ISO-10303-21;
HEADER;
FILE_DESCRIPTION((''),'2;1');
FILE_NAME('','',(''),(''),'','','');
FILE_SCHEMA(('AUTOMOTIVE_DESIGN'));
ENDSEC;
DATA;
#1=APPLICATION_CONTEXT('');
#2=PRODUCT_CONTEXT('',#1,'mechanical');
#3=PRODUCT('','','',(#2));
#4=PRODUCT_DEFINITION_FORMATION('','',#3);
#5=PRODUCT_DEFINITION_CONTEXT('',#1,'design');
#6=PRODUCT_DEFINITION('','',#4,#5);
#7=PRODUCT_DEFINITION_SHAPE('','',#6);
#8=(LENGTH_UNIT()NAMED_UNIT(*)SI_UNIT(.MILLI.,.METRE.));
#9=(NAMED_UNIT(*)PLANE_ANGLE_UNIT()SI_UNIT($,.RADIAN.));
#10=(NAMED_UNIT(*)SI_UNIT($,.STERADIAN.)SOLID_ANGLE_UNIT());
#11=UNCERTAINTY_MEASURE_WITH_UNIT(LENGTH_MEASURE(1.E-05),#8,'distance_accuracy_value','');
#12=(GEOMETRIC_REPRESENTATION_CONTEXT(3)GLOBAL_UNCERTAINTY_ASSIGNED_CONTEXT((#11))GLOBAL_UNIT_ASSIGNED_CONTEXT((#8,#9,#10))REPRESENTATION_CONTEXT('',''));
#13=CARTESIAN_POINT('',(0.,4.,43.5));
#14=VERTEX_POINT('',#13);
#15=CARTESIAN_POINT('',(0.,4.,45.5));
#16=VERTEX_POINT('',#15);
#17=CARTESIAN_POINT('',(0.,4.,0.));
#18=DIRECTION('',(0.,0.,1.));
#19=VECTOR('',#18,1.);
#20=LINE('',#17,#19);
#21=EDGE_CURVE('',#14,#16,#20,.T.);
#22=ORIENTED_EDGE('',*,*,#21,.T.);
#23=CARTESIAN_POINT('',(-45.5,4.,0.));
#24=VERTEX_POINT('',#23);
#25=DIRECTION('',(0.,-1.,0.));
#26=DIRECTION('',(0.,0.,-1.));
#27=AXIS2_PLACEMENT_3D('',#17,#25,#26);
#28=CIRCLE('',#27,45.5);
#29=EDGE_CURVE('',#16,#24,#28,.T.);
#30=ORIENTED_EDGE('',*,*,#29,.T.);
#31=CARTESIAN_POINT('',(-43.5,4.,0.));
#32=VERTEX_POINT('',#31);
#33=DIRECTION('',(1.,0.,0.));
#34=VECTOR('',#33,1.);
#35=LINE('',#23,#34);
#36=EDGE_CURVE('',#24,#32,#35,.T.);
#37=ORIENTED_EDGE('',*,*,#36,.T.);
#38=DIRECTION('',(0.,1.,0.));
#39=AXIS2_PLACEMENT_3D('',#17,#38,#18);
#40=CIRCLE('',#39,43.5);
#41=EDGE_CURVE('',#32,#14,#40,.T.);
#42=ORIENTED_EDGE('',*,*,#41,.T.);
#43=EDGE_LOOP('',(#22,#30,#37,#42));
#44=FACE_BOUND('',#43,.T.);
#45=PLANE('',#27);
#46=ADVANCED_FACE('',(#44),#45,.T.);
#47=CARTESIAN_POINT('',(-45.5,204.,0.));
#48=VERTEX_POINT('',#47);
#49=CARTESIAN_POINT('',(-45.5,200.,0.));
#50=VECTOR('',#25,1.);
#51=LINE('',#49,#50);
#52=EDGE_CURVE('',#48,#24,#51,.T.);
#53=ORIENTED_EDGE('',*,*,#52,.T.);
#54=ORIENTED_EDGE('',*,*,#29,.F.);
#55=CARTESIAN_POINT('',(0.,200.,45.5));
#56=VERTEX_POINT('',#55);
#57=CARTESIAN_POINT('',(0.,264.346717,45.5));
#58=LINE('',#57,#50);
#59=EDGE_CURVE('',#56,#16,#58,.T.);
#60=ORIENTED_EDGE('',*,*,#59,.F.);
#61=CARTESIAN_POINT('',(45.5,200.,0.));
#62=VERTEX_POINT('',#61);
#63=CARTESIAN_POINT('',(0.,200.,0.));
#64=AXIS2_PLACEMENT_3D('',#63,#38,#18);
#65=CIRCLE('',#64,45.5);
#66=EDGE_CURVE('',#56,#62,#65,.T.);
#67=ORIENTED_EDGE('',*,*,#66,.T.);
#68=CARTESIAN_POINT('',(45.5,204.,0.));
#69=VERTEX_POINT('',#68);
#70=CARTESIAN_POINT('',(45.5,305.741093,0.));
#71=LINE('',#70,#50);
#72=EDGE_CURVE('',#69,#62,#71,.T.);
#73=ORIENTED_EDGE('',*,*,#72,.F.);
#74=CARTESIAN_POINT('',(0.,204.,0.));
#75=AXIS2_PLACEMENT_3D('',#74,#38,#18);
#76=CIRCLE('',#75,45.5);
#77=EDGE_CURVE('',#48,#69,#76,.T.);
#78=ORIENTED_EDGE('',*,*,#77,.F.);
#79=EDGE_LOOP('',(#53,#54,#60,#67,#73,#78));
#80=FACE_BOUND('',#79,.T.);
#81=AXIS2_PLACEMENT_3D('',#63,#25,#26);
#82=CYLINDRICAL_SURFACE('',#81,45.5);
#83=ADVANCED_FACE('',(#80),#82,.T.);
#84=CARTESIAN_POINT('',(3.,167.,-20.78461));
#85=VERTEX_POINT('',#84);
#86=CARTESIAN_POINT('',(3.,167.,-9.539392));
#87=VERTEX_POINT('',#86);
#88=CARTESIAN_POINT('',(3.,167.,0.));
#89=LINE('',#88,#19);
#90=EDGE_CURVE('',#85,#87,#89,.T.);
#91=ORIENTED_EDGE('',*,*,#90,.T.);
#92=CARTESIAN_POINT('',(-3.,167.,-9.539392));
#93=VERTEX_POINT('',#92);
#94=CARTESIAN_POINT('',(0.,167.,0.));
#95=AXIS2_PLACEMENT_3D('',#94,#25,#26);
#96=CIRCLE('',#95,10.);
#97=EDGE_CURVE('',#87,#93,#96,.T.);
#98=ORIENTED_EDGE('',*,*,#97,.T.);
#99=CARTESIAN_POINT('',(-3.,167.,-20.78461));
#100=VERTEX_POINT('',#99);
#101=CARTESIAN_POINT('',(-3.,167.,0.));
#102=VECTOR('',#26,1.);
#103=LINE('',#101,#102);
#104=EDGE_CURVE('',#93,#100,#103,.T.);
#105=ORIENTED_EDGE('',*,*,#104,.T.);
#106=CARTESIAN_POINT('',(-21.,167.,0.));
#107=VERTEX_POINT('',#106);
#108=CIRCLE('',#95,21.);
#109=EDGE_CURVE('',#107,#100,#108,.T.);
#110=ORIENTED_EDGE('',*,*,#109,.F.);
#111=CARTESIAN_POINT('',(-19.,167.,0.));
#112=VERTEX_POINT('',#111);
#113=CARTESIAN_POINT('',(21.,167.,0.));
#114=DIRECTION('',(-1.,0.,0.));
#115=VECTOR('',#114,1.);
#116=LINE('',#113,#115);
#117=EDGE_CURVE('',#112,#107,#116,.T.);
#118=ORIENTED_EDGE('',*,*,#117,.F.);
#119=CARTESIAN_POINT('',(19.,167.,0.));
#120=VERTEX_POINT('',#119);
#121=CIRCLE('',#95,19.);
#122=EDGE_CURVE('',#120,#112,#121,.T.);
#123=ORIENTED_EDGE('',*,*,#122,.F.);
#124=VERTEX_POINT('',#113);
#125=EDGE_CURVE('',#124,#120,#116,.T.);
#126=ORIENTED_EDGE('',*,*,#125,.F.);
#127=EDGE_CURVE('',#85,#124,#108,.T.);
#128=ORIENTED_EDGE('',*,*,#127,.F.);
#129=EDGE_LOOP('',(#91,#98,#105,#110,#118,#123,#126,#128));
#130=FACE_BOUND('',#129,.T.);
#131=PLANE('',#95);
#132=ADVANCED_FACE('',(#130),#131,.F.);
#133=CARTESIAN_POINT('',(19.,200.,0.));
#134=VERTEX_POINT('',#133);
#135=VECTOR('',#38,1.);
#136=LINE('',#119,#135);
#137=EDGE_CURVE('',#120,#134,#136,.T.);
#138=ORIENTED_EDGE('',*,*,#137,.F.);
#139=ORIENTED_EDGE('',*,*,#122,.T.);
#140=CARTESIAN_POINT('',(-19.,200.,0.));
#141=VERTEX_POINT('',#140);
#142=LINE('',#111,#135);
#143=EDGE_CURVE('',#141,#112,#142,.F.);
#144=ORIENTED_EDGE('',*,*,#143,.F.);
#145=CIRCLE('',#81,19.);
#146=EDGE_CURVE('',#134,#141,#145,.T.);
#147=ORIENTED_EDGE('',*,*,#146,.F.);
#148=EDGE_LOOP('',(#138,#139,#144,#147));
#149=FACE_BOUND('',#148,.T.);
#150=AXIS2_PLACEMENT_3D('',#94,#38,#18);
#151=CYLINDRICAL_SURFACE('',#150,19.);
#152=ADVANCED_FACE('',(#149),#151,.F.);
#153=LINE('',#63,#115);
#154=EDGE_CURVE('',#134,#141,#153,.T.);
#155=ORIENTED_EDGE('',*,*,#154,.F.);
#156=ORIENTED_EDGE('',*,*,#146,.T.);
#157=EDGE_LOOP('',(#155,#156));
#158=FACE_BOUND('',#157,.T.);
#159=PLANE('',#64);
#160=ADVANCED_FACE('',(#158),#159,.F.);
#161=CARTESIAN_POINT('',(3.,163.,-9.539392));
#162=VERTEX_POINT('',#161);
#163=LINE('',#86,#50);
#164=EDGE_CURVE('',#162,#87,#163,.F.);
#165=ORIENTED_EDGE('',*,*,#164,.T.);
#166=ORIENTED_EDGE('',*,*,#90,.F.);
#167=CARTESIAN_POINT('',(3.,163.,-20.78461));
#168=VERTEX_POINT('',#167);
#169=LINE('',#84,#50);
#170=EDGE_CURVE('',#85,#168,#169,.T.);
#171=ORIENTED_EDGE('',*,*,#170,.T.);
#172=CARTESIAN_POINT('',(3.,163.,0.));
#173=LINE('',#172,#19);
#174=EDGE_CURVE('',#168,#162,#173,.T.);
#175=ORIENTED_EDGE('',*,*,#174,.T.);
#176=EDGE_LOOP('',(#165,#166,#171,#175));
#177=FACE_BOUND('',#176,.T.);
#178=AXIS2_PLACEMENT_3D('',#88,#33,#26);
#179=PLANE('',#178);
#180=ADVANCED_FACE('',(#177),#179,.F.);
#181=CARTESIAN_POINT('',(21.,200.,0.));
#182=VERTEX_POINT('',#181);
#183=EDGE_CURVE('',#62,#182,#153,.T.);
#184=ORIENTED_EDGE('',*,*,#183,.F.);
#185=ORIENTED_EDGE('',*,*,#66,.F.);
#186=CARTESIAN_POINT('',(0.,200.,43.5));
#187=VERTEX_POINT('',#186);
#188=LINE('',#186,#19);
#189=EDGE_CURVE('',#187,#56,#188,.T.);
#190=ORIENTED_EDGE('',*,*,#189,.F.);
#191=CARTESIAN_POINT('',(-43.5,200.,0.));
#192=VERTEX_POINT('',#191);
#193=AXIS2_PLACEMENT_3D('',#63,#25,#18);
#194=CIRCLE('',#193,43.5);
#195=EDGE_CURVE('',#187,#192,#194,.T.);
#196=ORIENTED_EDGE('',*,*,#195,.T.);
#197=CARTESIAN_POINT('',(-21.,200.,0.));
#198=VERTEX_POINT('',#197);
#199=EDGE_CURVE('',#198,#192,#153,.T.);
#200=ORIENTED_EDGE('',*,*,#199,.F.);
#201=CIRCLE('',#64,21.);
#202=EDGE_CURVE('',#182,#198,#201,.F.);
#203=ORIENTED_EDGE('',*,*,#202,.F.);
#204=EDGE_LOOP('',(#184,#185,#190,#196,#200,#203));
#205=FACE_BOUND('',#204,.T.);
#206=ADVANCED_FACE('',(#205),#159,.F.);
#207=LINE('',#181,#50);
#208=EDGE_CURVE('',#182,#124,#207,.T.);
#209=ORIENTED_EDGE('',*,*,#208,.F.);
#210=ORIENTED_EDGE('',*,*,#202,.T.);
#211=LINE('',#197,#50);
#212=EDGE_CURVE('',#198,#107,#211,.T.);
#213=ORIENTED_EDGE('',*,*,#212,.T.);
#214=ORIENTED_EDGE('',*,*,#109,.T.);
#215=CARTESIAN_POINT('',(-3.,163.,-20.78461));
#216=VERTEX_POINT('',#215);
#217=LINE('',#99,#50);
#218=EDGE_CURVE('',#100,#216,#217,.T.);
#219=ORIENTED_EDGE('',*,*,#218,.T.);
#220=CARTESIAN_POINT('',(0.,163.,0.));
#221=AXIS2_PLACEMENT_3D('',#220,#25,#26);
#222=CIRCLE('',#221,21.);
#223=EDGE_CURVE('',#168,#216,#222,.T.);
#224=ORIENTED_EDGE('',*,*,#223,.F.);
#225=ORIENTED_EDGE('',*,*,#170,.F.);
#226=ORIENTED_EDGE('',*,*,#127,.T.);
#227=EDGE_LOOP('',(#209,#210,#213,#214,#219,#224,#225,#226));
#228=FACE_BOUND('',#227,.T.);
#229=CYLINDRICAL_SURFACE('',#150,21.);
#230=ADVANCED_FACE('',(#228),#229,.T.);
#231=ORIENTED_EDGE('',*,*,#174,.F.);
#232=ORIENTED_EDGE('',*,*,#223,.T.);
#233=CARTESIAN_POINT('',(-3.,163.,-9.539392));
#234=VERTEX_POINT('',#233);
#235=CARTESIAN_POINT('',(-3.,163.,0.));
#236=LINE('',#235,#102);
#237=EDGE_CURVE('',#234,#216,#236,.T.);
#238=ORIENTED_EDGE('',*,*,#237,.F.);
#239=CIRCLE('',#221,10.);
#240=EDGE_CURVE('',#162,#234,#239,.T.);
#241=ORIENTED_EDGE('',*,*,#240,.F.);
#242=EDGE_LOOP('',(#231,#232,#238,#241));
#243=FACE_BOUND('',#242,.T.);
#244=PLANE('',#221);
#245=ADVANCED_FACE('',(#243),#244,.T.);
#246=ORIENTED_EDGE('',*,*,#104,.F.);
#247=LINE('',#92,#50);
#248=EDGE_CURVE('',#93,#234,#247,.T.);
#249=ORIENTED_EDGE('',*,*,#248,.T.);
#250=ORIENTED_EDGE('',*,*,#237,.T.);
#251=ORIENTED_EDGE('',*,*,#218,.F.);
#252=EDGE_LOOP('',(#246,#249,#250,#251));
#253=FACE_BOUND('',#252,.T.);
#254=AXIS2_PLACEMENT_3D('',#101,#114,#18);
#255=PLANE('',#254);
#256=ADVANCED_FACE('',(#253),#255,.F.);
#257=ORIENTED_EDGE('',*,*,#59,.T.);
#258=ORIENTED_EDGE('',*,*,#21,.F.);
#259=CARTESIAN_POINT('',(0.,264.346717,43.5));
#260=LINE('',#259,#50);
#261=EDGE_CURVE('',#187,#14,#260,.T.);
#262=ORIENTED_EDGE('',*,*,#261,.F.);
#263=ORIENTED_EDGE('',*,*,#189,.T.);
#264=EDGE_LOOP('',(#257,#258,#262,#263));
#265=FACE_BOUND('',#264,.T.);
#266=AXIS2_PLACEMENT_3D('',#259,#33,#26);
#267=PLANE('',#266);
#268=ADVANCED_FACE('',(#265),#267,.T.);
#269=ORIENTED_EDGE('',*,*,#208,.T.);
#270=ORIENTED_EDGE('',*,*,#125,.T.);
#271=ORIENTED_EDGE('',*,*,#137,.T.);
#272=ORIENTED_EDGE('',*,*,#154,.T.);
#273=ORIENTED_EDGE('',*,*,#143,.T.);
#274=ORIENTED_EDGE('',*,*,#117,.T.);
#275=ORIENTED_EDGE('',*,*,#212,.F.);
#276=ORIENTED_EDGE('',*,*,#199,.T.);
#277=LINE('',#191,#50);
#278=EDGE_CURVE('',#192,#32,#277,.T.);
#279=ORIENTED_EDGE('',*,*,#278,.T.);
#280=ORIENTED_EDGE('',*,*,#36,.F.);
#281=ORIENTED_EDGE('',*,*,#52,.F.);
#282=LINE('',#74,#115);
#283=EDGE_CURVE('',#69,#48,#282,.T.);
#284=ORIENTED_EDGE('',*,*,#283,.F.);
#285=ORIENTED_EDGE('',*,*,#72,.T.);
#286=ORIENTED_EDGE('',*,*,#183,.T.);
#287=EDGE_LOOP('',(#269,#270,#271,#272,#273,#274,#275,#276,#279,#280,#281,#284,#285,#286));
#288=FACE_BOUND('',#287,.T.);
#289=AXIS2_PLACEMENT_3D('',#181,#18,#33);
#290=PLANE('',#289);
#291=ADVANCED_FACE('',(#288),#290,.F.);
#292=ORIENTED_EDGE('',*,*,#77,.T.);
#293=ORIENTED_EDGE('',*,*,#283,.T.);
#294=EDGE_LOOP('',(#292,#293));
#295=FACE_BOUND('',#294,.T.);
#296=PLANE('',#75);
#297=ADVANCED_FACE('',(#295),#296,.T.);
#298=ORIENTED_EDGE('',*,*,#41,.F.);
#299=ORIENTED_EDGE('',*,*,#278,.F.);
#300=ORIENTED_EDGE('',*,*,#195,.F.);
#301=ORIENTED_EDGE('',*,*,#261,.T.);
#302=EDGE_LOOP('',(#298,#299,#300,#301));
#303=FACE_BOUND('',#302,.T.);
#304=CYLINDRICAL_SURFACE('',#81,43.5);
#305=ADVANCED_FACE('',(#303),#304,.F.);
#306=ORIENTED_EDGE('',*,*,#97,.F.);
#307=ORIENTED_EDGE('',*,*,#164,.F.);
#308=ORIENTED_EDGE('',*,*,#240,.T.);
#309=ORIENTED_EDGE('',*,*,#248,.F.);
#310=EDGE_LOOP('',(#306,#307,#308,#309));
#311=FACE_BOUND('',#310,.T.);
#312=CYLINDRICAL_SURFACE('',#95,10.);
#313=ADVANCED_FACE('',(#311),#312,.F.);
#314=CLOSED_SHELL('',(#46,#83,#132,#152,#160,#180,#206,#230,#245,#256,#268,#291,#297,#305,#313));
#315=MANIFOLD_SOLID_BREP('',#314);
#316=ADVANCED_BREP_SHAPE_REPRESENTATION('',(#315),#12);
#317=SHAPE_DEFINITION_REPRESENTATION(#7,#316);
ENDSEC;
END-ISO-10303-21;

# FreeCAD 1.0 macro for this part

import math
import FreeCAD as App
import Part
import Sketcher

V = App.Vector
Q = App.Units.Quantity

doc = App.newDocument("Part")
body = doc.addObject("PartDesign::Body", "Body")

# Sketch on XZ plane
sketch1 = body.newObject("Sketcher::SketchObject", "Sketch")
sketch1.AttachmentSupport = (doc.getObject("XZ_Plane"), [""])
sketch1.MapMode = "FlatFace"
sketch1.addGeometry([
    Part.Circle(V(0, 0, 0), V(0, 0, 1), 44),
    Part.Circle(V(0, 0, 0), V(0, 0, 1), 30),
], False)
sketch1.addConstraint([
    Sketcher.Constraint("Coincident", 0, 3, -1, 1),
    Sketcher.Constraint("Coincident", 1, 3, -1, 1),
    Sketcher.Constraint("Diameter", 0, Q("87 mm")),
    Sketcher.Constraint("Diameter", 1, Q("60 mm")),
])
pad1 = body.newObject("PartDesign::Pad", "Pad")
pad1.Profile = sketch1
pad1.Length = 4
pad1.Reversed = True

# Sketch on XZ plane
sketch2 = body.newObject("Sketcher::SketchObject", "Sketch001")
sketch2.AttachmentSupport = (doc.getObject("XZ_Plane"), [""])
sketch2.MapMode = "FlatFace"
sketch2.addGeometry([
    Part.Circle(V(0, 0, 0), V(0, 0, 1), 30),
    Part.Circle(V(0, 0, 0), V(0, 0, 1), 20),
], False)
sketch2.addConstraint([
    Sketcher.Constraint("Coincident", 0, 3, -1, 1),
    Sketcher.Constraint("Coincident", 1, 3, -1, 1),
    Sketcher.Constraint("Diameter", 0, Q("60 mm")),
    Sketcher.Constraint("Diameter", 1, Q("40 mm")),
])
pad2 = body.newObject("PartDesign::Pad", "Pad001")
pad2.Profile = sketch2
pad2.Length = 4
pad2.Reversed = True

# Sketch on XZ plane
sketch3 = body.newObject("Sketcher::SketchObject", "Sketch002")
sketch3.AttachmentSupport = (doc.getObject("XZ_Plane"), [""])
sketch3.MapMode = "FlatFace"
sketch3.addGeometry([
    Part.Circle(V(0, 0, 0), V(0, 0, 1), 30),
    Part.Circle(V(0, 0, 0), V(0, 0, 1), 20),
], False)
sketch3.addConstraint([
    Sketcher.Constraint("Coincident", 0, 3, -1, 1),
    Sketcher.Constraint("Coincident", 1, 3, -1, 1),
    Sketcher.Constraint("Diameter", 0, Q("60 mm")),
    Sketcher.Constraint("Diameter", 1, Q("40 mm")),
])
pocket1 = body.newObject("PartDesign::Pocket", "Pocket")
pocket1.Profile = sketch3
pocket1.Length = 2

# Sketch on XZ plane
sketch4 = body.newObject("Sketcher::SketchObject", "Sketch003")
sketch4.AttachmentSupport = (doc.getObject("XZ_Plane"), [""])
sketch4.MapMode = "FlatFace"
sketch4.addGeometry([
    Part.Circle(V(0, 37.5, 0), V(0, 0, 1), 3),
    Part.Circle(V(-37.5, 0, 0), V(0, 0, 1), 3),
    Part.Circle(V(0, -37.5, 0), V(0, 0, 1), 3),
    Part.Circle(V(37.5, 0, 0), V(0, 0, 1), 3),
], False)
sketch4.addConstraint([
    Sketcher.Constraint("Equal", 0, 1),
    Sketcher.Constraint("Equal", 1, 2),
    Sketcher.Constraint("Equal", 2, 3),
    Sketcher.Constraint("Symmetric", 0, 3, 2, 3, -1, 1),
    Sketcher.Constraint("Symmetric", 1, 3, 3, 3, -1, 1),
    Sketcher.Constraint("PointOnObject", 0, 3, -2),
    Sketcher.Constraint("PointOnObject", 1, 3, -1),
    Sketcher.Constraint("Diameter", 0, Q("6 mm")),
    Sketcher.Constraint("DistanceY", 2, 3, 0, 3, Q("75 mm")),
    Sketcher.Constraint("DistanceX", 1, 3, 3, 3, Q("75 mm")),
])
pocket2 = body.newObject("PartDesign::Pocket", "Pocket001")
pocket2.Profile = sketch4
pocket2.Length = 4

# Sketch on XZ plane
sketch5 = body.newObject("Sketcher::SketchObject", "Sketch004")
sketch5.AttachmentSupport = (doc.getObject("XZ_Plane"), [""])
sketch5.MapMode = "FlatFace"
sketch5.addGeometry([
    Part.LineSegment(V(-43.5, 0, 0), V(-45.5, 0, 0)),
    Part.ArcOfCircle(Part.Circle(V(0, 0, 0), V(0, 0, 1), 45.5), math.radians(0), math.radians(180)),
    Part.LineSegment(V(45.5, 0, 0), V(43.5, 0, 0)),
    Part.ArcOfCircle(Part.Circle(V(0, 0, 0), V(0, 0, 1), 43.5), math.radians(0), math.radians(180)),
], False)
sketch5.addConstraint([
    Sketcher.Constraint("Coincident", 0, 2, 1, 2),
    Sketcher.Constraint("Coincident", 1, 1, 2, 1),
    Sketcher.Constraint("Coincident", 2, 2, 3, 1),
    Sketcher.Constraint("Coincident", 3, 2, 0, 1),
    Sketcher.Constraint("Horizontal", 0),
    Sketcher.Constraint("Horizontal", 2),
    Sketcher.Constraint("Coincident", 1, 3, -1, 1),
    Sketcher.Constraint("Coincident", 3, 3, -1, 1),
    Sketcher.Constraint("PointOnObject", 0, 2, -1),
    Sketcher.Constraint("PointOnObject", 1, 1, -1),
    Sketcher.Constraint("Radius", 1, Q("45.5 mm")),
    Sketcher.Constraint("Radius", 3, Q("43.5 mm")),
])
pad3 = body.newObject("PartDesign::Pad", "Pad002")
pad3.Profile = sketch5
pad3.Length = 200
pad3.Reversed = True

# Sketch on XZ plane
sketch6 = body.newObject("Sketcher::SketchObject", "Sketch005")
sketch6.AttachmentSupport = (doc.getObject("XZ_Plane"), [""])
sketch6.MapMode = "FlatFace"
sketch6.AttachmentOffset = App.Placement(V(0, 0, -200), App.Rotation())
sketch6.addGeometry(Part.Circle(V(0, 0, 0), V(0, 0, 1), 46), False)
sketch6.addConstraint([
    Sketcher.Constraint("Coincident", 0, 3, -1, 1),
    Sketcher.Constraint("Diameter", 0, Q("91 mm")),
])
pad4 = body.newObject("PartDesign::Pad", "Pad003")
pad4.Profile = sketch6
pad4.Length = 4
pad4.Reversed = True

# Sketch on XZ plane
sketch7 = body.newObject("Sketcher::SketchObject", "Sketch006")
sketch7.AttachmentSupport = (doc.getObject("XZ_Plane"), [""])
sketch7.MapMode = "FlatFace"
sketch7.AttachmentOffset = App.Placement(V(0, 0, -200), App.Rotation())
sketch7.addGeometry([
    Part.Circle(V(0, 0, 0), V(0, 0, 1), 21),
    Part.Circle(V(0, 0, 0), V(0, 0, 1), 19),
], False)
sketch7.addConstraint([
    Sketcher.Constraint("Coincident", 0, 3, -1, 1),
    Sketcher.Constraint("Coincident", 1, 3, -1, 1),
    Sketcher.Constraint("Diameter", 0, Q("42 mm")),
    Sketcher.Constraint("Diameter", 1, Q("38 mm")),
])
pad5 = body.newObject("PartDesign::Pad", "Pad004")
pad5.Profile = sketch7
pad5.Length = 33

# Sketch on XZ plane
sketch8 = body.newObject("Sketcher::SketchObject", "Sketch007")
sketch8.AttachmentSupport = (doc.getObject("XZ_Plane"), [""])
sketch8.MapMode = "FlatFace"
sketch8.AttachmentOffset = App.Placement(V(0, 0, -200), App.Rotation())
sketch8.addGeometry([
    Part.LineSegment(V(21, 0, 0), V(-21, 0, 0)),
    Part.ArcOfCircle(Part.Circle(V(0, 0, 0), V(0, 0, 1), 21), math.radians(180), math.radians(360)),
], False)
sketch8.addConstraint([
    Sketcher.Constraint("Coincident", 0, 1, 1, 2),
    Sketcher.Constraint("Coincident", 1, 1, 0, 2),
    Sketcher.Constraint("Horizontal", 0),
    Sketcher.Constraint("Coincident", 1, 3, -1, 1),
    Sketcher.Constraint("PointOnObject", 0, 1, -1),
    Sketcher.Constraint("Radius", 1, Q("21 mm")),
])
pocket3 = body.newObject("PartDesign::Pocket", "Pocket002")
pocket3.Profile = sketch8
pocket3.Length = 33
pocket3.Reversed = True

# Sketch on XZ plane
sketch9 = body.newObject("Sketcher::SketchObject", "Sketch008")
sketch9.AttachmentSupport = (doc.getObject("XZ_Plane"), [""])
sketch9.MapMode = "FlatFace"
sketch9.AttachmentOffset = App.Placement(V(0, 0, -167), App.Rotation())
sketch9.addGeometry(Part.Circle(V(0, 0, 0), V(0, 0, 1), 21), False)
sketch9.addConstraint([
    Sketcher.Constraint("Coincident", 0, 3, -1, 1),
    Sketcher.Constraint("Diameter", 0, Q("42 mm")),
])
pad6 = body.newObject("PartDesign::Pad", "Pad005")
pad6.Profile = sketch9
pad6.Length = 4

# Sketch on XZ plane
sketch10 = body.newObject("Sketcher::SketchObject", "Sketch009")
sketch10.AttachmentSupport = (doc.getObject("XZ_Plane"), [""])
sketch10.MapMode = "FlatFace"
sketch10.AttachmentOffset = App.Placement(V(0, 0, -167), App.Rotation())
sketch10.addGeometry([
    Part.LineSegment(V(-3, 0, 0), V(-3, -20.8, 0)),
    Part.ArcOfCircle(Part.Circle(V(0, 0, 0), V(0, 0, 1), 21), math.radians(-98.21), math.radians(-81.79)),
    Part.LineSegment(V(3, -20.8, 0), V(3, 0, 0)),
    Part.ArcOfCircle(Part.Circle(V(0, 0, 0), V(0, 0, 1), 3), math.radians(0), math.radians(180)),
], False)
sketch10.addConstraint([
    Sketcher.Constraint("Coincident", 0, 2, 1, 1),
    Sketcher.Constraint("Coincident", 1, 2, 2, 1),
    Sketcher.Constraint("Tangent", 2, 2, 3, 1),
    Sketcher.Constraint("Tangent", 3, 2, 0, 1),
    Sketcher.Constraint("Vertical", 0),
    Sketcher.Constraint("Vertical", 2),
    Sketcher.Constraint("Coincident", 1, 3, -1, 1),
    Sketcher.Constraint("Coincident", 3, 3, -1, 1),
    Sketcher.Constraint("Radius", 1, Q("21 mm")),
    Sketcher.Constraint("Radius", 3, Q("3 mm")),
])
pocket4 = body.newObject("PartDesign::Pocket", "Pocket003")
pocket4.Profile = sketch10
pocket4.Length = 4
pocket4.Reversed = True

# Sketch on XZ plane
sketch11 = body.newObject("Sketcher::SketchObject", "Sketch010")
sketch11.AttachmentSupport = (doc.getObject("XZ_Plane"), [""])
sketch11.MapMode = "FlatFace"
sketch11.addGeometry(Part.Circle(V(0, 0, 0), V(0, 0, 1), 46), False)
sketch11.addConstraint([
    Sketcher.Constraint("Coincident", 0, 3, -1, 1),
    Sketcher.Constraint("Diameter", 0, Q("91 mm")),
])
pocket5 = body.newObject("PartDesign::Pocket", "Pocket004")
pocket5.Profile = sketch11
pocket5.Length = 4

# Sketch on XZ plane
sketch12 = body.newObject("Sketcher::SketchObject", "Sketch011")
sketch12.AttachmentSupport = (doc.getObject("XZ_Plane"), [""])
sketch12.MapMode = "FlatFace"
sketch12.addGeometry([
    Part.LineSegment(V(45.5, 0, 0), V(43.5, 0, 0)),
    Part.ArcOfCircle(Part.Circle(V(0, 0, 0), V(0, 0, 1), 43.5), math.radians(0), math.radians(90)),
    Part.LineSegment(V(0, 43.5, 0), V(0, 45.5, 0)),
    Part.ArcOfCircle(Part.Circle(V(0, 0, 0), V(0, 0, 1), 45.5), math.radians(0), math.radians(90)),
], False)
sketch12.addConstraint([
    Sketcher.Constraint("Coincident", 0, 2, 1, 1),
    Sketcher.Constraint("Coincident", 1, 2, 2, 1),
    Sketcher.Constraint("Coincident", 2, 2, 3, 2),
    Sketcher.Constraint("Coincident", 3, 1, 0, 1),
    Sketcher.Constraint("Horizontal", 0),
    Sketcher.Constraint("Vertical", 2),
    Sketcher.Constraint("Coincident", 1, 3, -1, 1),
    Sketcher.Constraint("Coincident", 3, 3, -1, 1),
    Sketcher.Constraint("PointOnObject", 0, 2, -1),
    Sketcher.Constraint("PointOnObject", 1, 2, -2),
    Sketcher.Constraint("Radius", 1, Q("43.5 mm")),
    Sketcher.Constraint("Radius", 3, Q("45.5 mm")),
])
pocket6 = body.newObject("PartDesign::Pocket", "Pocket005")
pocket6.Profile = sketch12
pocket6.Length = 200

# Sketch on XZ plane
sketch13 = body.newObject("Sketcher::SketchObject", "Sketch012")
sketch13.AttachmentSupport = (doc.getObject("XZ_Plane"), [""])
sketch13.MapMode = "FlatFace"
sketch13.AttachmentOffset = App.Placement(V(0, 0, -163), App.Rotation())
sketch13.addGeometry(Part.Circle(V(0, 0, 0), V(0, 0, 1), 10), False)
sketch13.addConstraint([
    Sketcher.Constraint("Coincident", 0, 3, -1, 1),
    Sketcher.Constraint("Diameter", 0, Q("20 mm")),
])
pocket7 = body.newObject("PartDesign::Pocket", "Pocket006")
pocket7.Profile = sketch13
pocket7.Length = 4

# Sketch on XZ plane
sketch14 = body.newObject("Sketcher::SketchObject", "Sketch013")
sketch14.AttachmentSupport = (doc.getObject("XZ_Plane"), [""])
sketch14.MapMode = "FlatFace"
sketch14.AttachmentOffset = App.Placement(V(0, 0, -200), App.Rotation())
sketch14.addGeometry([
    Part.LineSegment(V(-46, 0, 0), V(46, 0, 0)),
    Part.ArcOfCircle(Part.Circle(V(0, 0, 0), V(0, 0, 1), 46), math.radians(180), math.radians(360)),
], False)
sketch14.addConstraint([
    Sketcher.Constraint("Coincident", 0, 1, 1, 1),
    Sketcher.Constraint("Coincident", 1, 2, 0, 2),
    Sketcher.Constraint("Horizontal", 0),
    Sketcher.Constraint("Coincident", 1, 3, -1, 1),
    Sketcher.Constraint("PointOnObject", 0, 1, -1),
    Sketcher.Constraint("Radius", 1, Q("45.5 mm")),
])
pocket8 = body.newObject("PartDesign::Pocket", "Pocket007")
pocket8.Profile = sketch14
pocket8.Length = 4

doc.recompute()
